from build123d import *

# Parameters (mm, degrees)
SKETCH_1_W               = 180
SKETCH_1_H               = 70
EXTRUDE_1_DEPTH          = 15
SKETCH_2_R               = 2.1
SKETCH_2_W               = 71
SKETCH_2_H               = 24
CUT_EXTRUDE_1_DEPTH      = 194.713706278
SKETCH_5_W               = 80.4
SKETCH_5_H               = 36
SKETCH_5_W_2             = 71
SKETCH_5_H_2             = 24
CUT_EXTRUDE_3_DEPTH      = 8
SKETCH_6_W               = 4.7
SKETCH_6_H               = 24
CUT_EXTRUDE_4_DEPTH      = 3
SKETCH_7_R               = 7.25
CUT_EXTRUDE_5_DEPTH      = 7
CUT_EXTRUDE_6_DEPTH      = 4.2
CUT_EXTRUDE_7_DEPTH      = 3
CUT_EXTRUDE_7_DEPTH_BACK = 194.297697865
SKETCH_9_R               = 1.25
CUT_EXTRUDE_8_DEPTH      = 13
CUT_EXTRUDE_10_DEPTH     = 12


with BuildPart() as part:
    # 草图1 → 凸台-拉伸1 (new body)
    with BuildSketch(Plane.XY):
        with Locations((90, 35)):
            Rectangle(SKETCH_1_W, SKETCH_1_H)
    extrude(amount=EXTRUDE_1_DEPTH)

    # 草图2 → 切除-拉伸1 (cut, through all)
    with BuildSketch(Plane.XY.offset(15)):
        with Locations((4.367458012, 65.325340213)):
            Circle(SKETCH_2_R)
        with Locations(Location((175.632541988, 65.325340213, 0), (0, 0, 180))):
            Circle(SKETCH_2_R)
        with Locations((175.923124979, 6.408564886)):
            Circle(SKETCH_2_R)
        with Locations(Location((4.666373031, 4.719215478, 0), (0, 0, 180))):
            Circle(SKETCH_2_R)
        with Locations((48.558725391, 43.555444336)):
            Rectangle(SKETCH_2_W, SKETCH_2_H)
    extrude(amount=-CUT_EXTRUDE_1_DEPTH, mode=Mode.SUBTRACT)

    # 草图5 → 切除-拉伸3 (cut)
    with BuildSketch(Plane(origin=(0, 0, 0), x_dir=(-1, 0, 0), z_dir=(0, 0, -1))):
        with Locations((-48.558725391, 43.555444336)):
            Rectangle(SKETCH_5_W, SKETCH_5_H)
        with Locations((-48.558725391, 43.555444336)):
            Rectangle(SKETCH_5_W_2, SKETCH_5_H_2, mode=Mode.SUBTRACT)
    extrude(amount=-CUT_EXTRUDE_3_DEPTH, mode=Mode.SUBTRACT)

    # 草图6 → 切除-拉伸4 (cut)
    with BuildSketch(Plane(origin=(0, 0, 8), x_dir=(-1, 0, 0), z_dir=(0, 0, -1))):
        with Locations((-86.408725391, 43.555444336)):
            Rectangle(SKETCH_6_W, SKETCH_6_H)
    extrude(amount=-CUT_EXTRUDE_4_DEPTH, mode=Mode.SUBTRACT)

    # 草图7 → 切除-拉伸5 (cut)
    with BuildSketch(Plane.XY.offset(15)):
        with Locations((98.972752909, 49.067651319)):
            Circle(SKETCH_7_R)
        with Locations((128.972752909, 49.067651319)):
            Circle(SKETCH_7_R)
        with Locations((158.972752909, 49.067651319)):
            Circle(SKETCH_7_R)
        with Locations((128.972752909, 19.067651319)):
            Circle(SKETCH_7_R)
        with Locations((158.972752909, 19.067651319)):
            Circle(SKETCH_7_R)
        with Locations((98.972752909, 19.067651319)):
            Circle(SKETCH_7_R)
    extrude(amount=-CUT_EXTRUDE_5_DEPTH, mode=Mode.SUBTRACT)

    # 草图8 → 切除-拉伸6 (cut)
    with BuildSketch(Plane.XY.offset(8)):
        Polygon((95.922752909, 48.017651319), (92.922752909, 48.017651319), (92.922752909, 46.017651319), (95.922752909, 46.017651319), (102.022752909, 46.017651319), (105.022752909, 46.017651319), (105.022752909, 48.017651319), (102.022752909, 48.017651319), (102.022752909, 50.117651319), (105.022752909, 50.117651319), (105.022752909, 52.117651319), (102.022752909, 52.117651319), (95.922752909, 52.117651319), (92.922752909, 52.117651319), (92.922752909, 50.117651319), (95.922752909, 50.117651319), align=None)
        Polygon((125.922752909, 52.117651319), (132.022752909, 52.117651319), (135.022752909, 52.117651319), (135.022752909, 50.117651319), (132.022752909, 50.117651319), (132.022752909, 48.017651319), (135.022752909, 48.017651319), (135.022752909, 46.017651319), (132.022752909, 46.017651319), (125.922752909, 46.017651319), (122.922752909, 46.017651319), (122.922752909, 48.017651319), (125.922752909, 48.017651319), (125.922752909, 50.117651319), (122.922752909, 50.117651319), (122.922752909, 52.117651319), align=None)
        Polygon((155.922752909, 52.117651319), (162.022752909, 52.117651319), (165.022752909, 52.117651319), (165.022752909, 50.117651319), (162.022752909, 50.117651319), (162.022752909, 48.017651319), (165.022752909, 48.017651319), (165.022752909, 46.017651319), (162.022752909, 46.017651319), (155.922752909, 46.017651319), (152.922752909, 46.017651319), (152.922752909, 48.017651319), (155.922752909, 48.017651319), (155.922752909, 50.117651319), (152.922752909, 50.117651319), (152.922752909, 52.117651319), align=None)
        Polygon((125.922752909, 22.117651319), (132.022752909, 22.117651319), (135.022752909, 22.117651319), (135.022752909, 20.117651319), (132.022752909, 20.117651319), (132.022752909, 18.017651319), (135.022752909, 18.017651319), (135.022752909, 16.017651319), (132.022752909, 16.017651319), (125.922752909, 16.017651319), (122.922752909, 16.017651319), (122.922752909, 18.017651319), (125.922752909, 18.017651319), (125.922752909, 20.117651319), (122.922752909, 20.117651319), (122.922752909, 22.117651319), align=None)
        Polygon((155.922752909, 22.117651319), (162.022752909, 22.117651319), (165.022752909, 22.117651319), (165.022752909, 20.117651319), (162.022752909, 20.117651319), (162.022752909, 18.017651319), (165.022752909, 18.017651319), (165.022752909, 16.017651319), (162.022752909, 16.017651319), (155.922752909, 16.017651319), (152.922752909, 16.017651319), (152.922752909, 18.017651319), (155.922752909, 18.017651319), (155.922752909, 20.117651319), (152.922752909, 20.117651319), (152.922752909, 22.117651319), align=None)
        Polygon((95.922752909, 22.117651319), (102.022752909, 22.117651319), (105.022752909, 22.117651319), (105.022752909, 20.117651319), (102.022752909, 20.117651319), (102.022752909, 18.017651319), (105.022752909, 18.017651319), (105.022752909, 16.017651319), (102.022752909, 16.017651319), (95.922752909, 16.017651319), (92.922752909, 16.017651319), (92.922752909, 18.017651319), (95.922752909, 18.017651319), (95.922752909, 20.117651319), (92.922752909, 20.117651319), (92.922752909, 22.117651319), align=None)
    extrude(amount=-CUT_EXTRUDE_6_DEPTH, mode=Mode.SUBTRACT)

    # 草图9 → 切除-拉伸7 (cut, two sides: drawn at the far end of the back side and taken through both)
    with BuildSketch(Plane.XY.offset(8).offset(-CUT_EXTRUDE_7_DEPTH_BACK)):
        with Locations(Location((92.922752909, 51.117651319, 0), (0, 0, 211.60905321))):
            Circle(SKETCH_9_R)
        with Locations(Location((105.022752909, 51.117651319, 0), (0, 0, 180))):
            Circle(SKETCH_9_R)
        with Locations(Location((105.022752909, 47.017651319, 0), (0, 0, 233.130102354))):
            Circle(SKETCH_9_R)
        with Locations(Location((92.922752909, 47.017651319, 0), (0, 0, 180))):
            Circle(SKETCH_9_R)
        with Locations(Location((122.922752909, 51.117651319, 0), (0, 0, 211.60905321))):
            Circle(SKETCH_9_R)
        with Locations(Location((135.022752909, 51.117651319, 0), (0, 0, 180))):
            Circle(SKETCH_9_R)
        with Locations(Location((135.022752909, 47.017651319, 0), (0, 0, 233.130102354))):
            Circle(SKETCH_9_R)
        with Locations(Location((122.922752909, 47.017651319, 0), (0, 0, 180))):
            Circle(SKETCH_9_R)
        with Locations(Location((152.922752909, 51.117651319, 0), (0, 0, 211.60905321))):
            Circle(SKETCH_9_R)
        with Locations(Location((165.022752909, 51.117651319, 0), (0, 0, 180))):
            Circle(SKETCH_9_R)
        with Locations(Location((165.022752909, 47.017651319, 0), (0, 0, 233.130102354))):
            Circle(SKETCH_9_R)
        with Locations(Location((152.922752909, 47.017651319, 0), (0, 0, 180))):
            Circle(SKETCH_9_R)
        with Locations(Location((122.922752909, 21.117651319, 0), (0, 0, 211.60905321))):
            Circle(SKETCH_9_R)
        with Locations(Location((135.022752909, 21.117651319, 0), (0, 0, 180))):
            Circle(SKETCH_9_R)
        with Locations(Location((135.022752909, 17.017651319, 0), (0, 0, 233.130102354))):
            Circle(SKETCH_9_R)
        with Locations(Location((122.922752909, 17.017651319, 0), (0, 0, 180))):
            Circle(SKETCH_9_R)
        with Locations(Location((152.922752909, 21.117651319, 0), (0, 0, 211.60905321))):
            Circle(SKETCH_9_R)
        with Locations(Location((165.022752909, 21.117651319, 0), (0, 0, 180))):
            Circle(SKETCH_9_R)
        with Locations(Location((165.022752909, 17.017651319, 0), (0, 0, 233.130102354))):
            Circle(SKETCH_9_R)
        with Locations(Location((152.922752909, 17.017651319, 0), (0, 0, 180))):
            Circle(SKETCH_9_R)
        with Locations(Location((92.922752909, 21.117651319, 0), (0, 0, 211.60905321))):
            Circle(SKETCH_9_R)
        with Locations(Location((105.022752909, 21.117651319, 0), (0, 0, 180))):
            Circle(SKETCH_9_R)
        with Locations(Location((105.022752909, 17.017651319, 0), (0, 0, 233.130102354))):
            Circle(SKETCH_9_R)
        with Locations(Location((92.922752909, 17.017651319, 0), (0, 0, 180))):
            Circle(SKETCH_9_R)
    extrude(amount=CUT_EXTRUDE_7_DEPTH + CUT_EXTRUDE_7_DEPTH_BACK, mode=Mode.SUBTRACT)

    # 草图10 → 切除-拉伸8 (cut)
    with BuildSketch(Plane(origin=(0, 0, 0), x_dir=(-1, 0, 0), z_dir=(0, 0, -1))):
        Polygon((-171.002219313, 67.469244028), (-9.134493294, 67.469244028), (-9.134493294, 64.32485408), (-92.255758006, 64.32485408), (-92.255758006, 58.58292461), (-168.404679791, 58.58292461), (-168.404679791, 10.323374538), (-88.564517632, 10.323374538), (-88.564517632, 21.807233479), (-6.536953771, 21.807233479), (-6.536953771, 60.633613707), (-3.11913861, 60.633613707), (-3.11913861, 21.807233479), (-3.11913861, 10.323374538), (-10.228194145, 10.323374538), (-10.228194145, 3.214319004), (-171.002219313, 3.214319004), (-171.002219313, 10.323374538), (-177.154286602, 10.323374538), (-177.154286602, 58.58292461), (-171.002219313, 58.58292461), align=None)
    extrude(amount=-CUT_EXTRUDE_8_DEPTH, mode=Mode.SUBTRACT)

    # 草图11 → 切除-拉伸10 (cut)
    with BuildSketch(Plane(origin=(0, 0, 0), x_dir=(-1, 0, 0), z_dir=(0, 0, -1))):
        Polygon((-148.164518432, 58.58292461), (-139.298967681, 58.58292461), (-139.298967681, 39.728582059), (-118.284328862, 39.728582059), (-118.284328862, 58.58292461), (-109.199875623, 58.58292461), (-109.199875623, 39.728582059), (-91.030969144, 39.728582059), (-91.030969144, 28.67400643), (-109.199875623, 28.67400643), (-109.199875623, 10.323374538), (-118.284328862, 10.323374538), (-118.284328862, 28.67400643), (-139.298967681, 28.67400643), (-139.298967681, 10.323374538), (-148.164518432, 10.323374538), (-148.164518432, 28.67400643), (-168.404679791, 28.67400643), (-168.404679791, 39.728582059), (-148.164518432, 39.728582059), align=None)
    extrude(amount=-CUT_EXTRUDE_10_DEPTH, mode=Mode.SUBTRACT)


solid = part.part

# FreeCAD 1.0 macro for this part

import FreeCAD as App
import Part
import Sketcher
Q = App.Units.Quantity


def add_polygon(sketch, points):
    """Adds a closed chain of lines whose ends are joined by coincident constraints."""
    first, n = sketch.GeometryCount, len(points)
    for a, b in zip(points, points[1:] + points[:1]):
        sketch.addGeometry(Part.LineSegment(App.Vector(*a, 0), App.Vector(*b, 0)), False)
    for i in range(n):
        sketch.addConstraint(Sketcher.Constraint("Coincident", first + i, 2, first + (i + 1) % n, 1))

doc = App.newDocument("Part")
body = doc.addObject("PartDesign::Body", "Body")

# Sketch on XY plane
sketch1 = doc.addObject("Sketcher::SketchObject", "Sketch")
body.addObject(sketch1)
sketch1.AttachmentSupport = (doc.XY_Plane, [""])
sketch1.MapMode = "FlatFace"
add_polygon(sketch1, [(0, 70), (0, 0), (180, 0), (180, 70)])  # lines 0-3
sketch1.addConstraint([
    Sketcher.Constraint("Vertical", 0),
    Sketcher.Constraint("Horizontal", 1),
    Sketcher.Constraint("Vertical", 2),
    Sketcher.Constraint("Horizontal", 3),
    Sketcher.Constraint("Coincident", 0, 2, -1, 1),
    Sketcher.Constraint("DistanceX", 1, 1, 1, 2, Q("180 mm")),
    Sketcher.Constraint("DistanceY", 0, 2, 0, 1, Q("70 mm")),
])
pad1 = doc.addObject("PartDesign::Pad", "Pad")
body.addObject(pad1)
pad1.Profile = sketch1
pad1.Length = 15

# Sketch on XY plane
sketch2 = doc.addObject("Sketcher::SketchObject", "Sketch001")
body.addObject(sketch2)
sketch2.AttachmentSupport = (doc.XY_Plane, [""])
sketch2.MapMode = "FlatFace"
sketch2.AttachmentOffset = App.Placement(App.Vector(0, 0, 15), App.Rotation())
sketch2.addGeometry(Part.Circle(App.Vector(4.4, 65.3, 0), App.Vector(0, 0, 1), 2.1), False)  # 0
sketch2.addGeometry(Part.Circle(App.Vector(175.6, 65.3, 0), App.Vector(0, 0, 1), 2.1), False)  # 1
sketch2.addGeometry(Part.Circle(App.Vector(175.9, 6.4, 0), App.Vector(0, 0, 1), 2.1), False)  # 2
sketch2.addGeometry(Part.Circle(App.Vector(4.7, 4.7, 0), App.Vector(0, 0, 1), 2.1), False)  # 3
add_polygon(sketch2, [(13.1, 55.6), (13.1, 31.6), (84.1, 31.6), (84.1, 55.6)])  # lines 4-7
sketch2.addConstraint([
    Sketcher.Constraint("Vertical", 4),
    Sketcher.Constraint("Horizontal", 5),
    Sketcher.Constraint("Vertical", 6),
    Sketcher.Constraint("Horizontal", 7),
    Sketcher.Constraint("Equal", 0, 1),
    Sketcher.Constraint("Equal", 1, 2),
    Sketcher.Constraint("Equal", 2, 3),
    Sketcher.Constraint("Horizontal", 0, 3, 1, 3),
    Sketcher.Constraint("Diameter", 0, Q("4.2 mm")),
    Sketcher.Constraint("DistanceX", 5, 1, 5, 2, Q("71 mm")),
    Sketcher.Constraint("DistanceY", 4, 2, 4, 1, Q("24 mm")),
    Sketcher.Constraint("DistanceX", 4, 2, 2, 3, Q("162.8644 mm")),
    Sketcher.Constraint("DistanceX", -1, 1, 0, 3, Q("4.367458 mm")),
    Sketcher.Constraint("DistanceY", -1, 1, 0, 3, Q("65.32534 mm")),
    Sketcher.Constraint("DistanceX", -1, 1, 1, 3, Q("175.632542 mm")),
    Sketcher.Constraint("DistanceX", 3, 3, 2, 3, Q("171.256752 mm")),
    Sketcher.Constraint("DistanceY", 3, 3, 2, 3, Q("1.689349 mm")),
    Sketcher.Constraint("DistanceX", 3, 3, 1, 3, Q("170.966169 mm")),
    Sketcher.Constraint("DistanceY", 3, 3, 4, 2, Q("26.836229 mm")),
    Sketcher.Constraint("DistanceY", -1, 1, 2, 3, Q("6.408565 mm")),
])
pocket1 = doc.addObject("PartDesign::Pocket", "Pocket")
body.addObject(pocket1)
pocket1.Profile = sketch2
pocket1.Type = "ThroughAll"

# Sketch on XY plane
sketch3 = doc.addObject("Sketcher::SketchObject", "Sketch002")
body.addObject(sketch3)
sketch3.AttachmentSupport = (doc.XY_Plane, [""])
sketch3.MapMode = "FlatFace"
add_polygon(sketch3, [(89, 62), (89, 26), (8, 26), (8, 62)])  # lines 0-3
add_polygon(sketch3, [(13, 32), (84, 32), (84, 56), (13, 56)])  # lines 4-7
sketch3.addConstraint([
    Sketcher.Constraint("Vertical", 0),
    Sketcher.Constraint("Horizontal", 1),
    Sketcher.Constraint("Vertical", 2),
    Sketcher.Constraint("Horizontal", 3),
    Sketcher.Constraint("Horizontal", 4),
    Sketcher.Constraint("Vertical", 5),
    Sketcher.Constraint("Horizontal", 6),
    Sketcher.Constraint("Vertical", 7),
    Sketcher.Constraint("DistanceX", 4, 1, 4, 2, Q("71 mm")),
    Sketcher.Constraint("DistanceY", 0, 2, 0, 1, Q("36 mm")),
    Sketcher.Constraint("DistanceY", 5, 1, 5, 2, Q("24 mm")),
    Sketcher.Constraint("DistanceX", 1, 2, 1, 1, Q("80.4 mm")),
    Sketcher.Constraint("DistanceY", 0, 2, 4, 2, Q("6 mm")),
    Sketcher.Constraint("DistanceX", 4, 2, 0, 2, Q("4.7 mm")),
    Sketcher.Constraint("DistanceX", -1, 1, 0, 2, Q("88.758725 mm")),
    Sketcher.Constraint("DistanceY", -1, 1, 0, 2, Q("25.555444 mm")),
])
pocket2 = doc.addObject("PartDesign::Pocket", "Pocket001")
body.addObject(pocket2)
pocket2.Profile = sketch3
pocket2.Length = 8
pocket2.Reversed = True

# Sketch on XY plane
sketch4 = doc.addObject("Sketcher::SketchObject", "Sketch003")
body.addObject(sketch4)
sketch4.AttachmentSupport = (doc.XY_Plane, [""])
sketch4.MapMode = "FlatFace"
sketch4.AttachmentOffset = App.Placement(App.Vector(0, 0, 8), App.Rotation())
add_polygon(sketch4, [(88.8, 55.6), (88.8, 31.6), (84.1, 31.6), (84.1, 55.6)])  # lines 0-3
sketch4.addConstraint([
    Sketcher.Constraint("Vertical", 0),
    Sketcher.Constraint("Horizontal", 1),
    Sketcher.Constraint("Vertical", 2),
    Sketcher.Constraint("Horizontal", 3),
    Sketcher.Constraint("DistanceY", 0, 2, 0, 1, Q("24 mm")),
    Sketcher.Constraint("DistanceX", 1, 2, 1, 1, Q("4.7 mm")),
    Sketcher.Constraint("DistanceX", -1, 1, 0, 2, Q("88.758725 mm")),
    Sketcher.Constraint("DistanceY", -1, 1, 0, 2, Q("31.555444 mm")),
])
pocket3 = doc.addObject("PartDesign::Pocket", "Pocket002")
body.addObject(pocket3)
pocket3.Profile = sketch4
pocket3.Length = 3
pocket3.Reversed = True

# Sketch on XY plane
sketch5 = doc.addObject("Sketcher::SketchObject", "Sketch004")
body.addObject(sketch5)
sketch5.AttachmentSupport = (doc.XY_Plane, [""])
sketch5.MapMode = "FlatFace"
sketch5.AttachmentOffset = App.Placement(App.Vector(0, 0, 15), App.Rotation())
sketch5.addGeometry([
    Part.Circle(App.Vector(99, 49, 0), App.Vector(0, 0, 1), 7),  # 0
    Part.Circle(App.Vector(129, 49, 0), App.Vector(0, 0, 1), 7),  # 1
    Part.Circle(App.Vector(159, 49, 0), App.Vector(0, 0, 1), 7),  # 2
    Part.Circle(App.Vector(129, 19, 0), App.Vector(0, 0, 1), 7),  # 3
    Part.Circle(App.Vector(159, 19, 0), App.Vector(0, 0, 1), 7),  # 4
    Part.Circle(App.Vector(99, 19, 0), App.Vector(0, 0, 1), 7),  # 5
], False)
sketch5.addConstraint([
    Sketcher.Constraint("Equal", 0, 1),
    Sketcher.Constraint("Equal", 1, 2),
    Sketcher.Constraint("Equal", 2, 3),
    Sketcher.Constraint("Equal", 3, 4),
    Sketcher.Constraint("Equal", 4, 5),
    Sketcher.Constraint("Horizontal", 0, 3, 1, 3),
    Sketcher.Constraint("Horizontal", 1, 3, 2, 3),
    Sketcher.Constraint("Horizontal", 3, 3, 4, 3),
    Sketcher.Constraint("Horizontal", 4, 3, 5, 3),
    Sketcher.Constraint("Vertical", 1, 3, 3, 3),
    Sketcher.Constraint("Vertical", 2, 3, 4, 3),
    Sketcher.Constraint("Vertical", 0, 3, 5, 3),
    Sketcher.Constraint("Diameter", 0, Q("14.5 mm")),
    Sketcher.Constraint("DistanceX", 0, 3, 1, 3, Q("30 mm")),
    Sketcher.Constraint("DistanceX", 1, 3, 2, 3, Q("30 mm")),
    Sketcher.Constraint("DistanceY", 3, 3, 1, 3, Q("30 mm")),
    Sketcher.Constraint("DistanceY", -1, 1, 0, 3, Q("49.067651 mm")),
    Sketcher.Constraint("DistanceX", -1, 1, 0, 3, Q("98.972753 mm")),
])
pocket4 = doc.addObject("PartDesign::Pocket", "Pocket003")
body.addObject(pocket4)
pocket4.Profile = sketch5
pocket4.Length = 7

# Sketch on XY plane
sketch6 = doc.addObject("Sketcher::SketchObject", "Sketch005")
body.addObject(sketch6)
sketch6.AttachmentSupport = (doc.XY_Plane, [""])
sketch6.MapMode = "FlatFace"
sketch6.AttachmentOffset = App.Placement(App.Vector(0, 0, 8), App.Rotation())
add_polygon(sketch6, [(95.9, 48), (92.9, 48), (92.9, 46), (105, 46), (105, 48), (102, 48), (102, 50.1), (105, 50.1), (105, 52.1), (92.9, 52.1), (92.9, 50.1), (95.9, 50.1)])  # lines 0-11
add_polygon(sketch6, [(135, 52.1), (122.9, 52.1), (122.9, 50.1), (125.9, 50.1), (125.9, 48), (122.9, 48), (122.9, 46), (135, 46), (135, 48), (132, 48), (132, 50.1), (135, 50.1)])  # lines 12-23
add_polygon(sketch6, [(165, 52.1), (152.9, 52.1), (152.9, 50.1), (155.9, 50.1), (155.9, 48), (152.9, 48), (152.9, 46), (165, 46), (165, 48), (162, 48), (162, 50.1), (165, 50.1)])  # lines 24-35
add_polygon(sketch6, [(135, 22.1), (122.9, 22.1), (122.9, 20.1), (125.9, 20.1), (125.9, 18), (122.9, 18), (122.9, 16), (135, 16), (135, 18), (132, 18), (132, 20.1), (135, 20.1)])  # lines 36-47
add_polygon(sketch6, [(165, 22.1), (152.9, 22.1), (152.9, 20.1), (155.9, 20.1), (155.9, 18), (152.9, 18), (152.9, 16), (165, 16), (165, 18), (162, 18), (162, 20.1), (165, 20.1)])  # lines 48-59
add_polygon(sketch6, [(105, 22.1), (92.9, 22.1), (92.9, 20.1), (95.9, 20.1), (95.9, 18), (92.9, 18), (92.9, 16), (105, 16), (105, 18), (102, 18), (102, 20.1), (105, 20.1)])  # lines 60-71
sketch6.addConstraint([
    Sketcher.Constraint("Horizontal", 0),
    Sketcher.Constraint("Vertical", 1),
    Sketcher.Constraint("Horizontal", 2),
    Sketcher.Constraint("Vertical", 3),
    Sketcher.Constraint("Horizontal", 4),
    Sketcher.Constraint("Vertical", 5),
    Sketcher.Constraint("Horizontal", 6),
    Sketcher.Constraint("Vertical", 7),
    Sketcher.Constraint("Horizontal", 8),
    Sketcher.Constraint("Vertical", 9),
    Sketcher.Constraint("Horizontal", 10),
    Sketcher.Constraint("Vertical", 11),
    Sketcher.Constraint("Horizontal", 12),
    Sketcher.Constraint("Vertical", 13),
    Sketcher.Constraint("Horizontal", 14),
    Sketcher.Constraint("Vertical", 15),
    Sketcher.Constraint("Horizontal", 16),
    Sketcher.Constraint("Vertical", 17),
    Sketcher.Constraint("Horizontal", 18),
    Sketcher.Constraint("Vertical", 19),
    Sketcher.Constraint("Horizontal", 20),
    Sketcher.Constraint("Vertical", 21),
    Sketcher.Constraint("Horizontal", 22),
    Sketcher.Constraint("Vertical", 23),
    Sketcher.Constraint("Horizontal", 24),
    Sketcher.Constraint("Vertical", 25),
    Sketcher.Constraint("Horizontal", 26),
    Sketcher.Constraint("Vertical", 27),
    Sketcher.Constraint("Horizontal", 28),
    Sketcher.Constraint("Vertical", 29),
    Sketcher.Constraint("Horizontal", 30),
    Sketcher.Constraint("Vertical", 31),
    Sketcher.Constraint("Horizontal", 32),
    Sketcher.Constraint("Vertical", 33),
    Sketcher.Constraint("Horizontal", 34),
    Sketcher.Constraint("Vertical", 35),
    Sketcher.Constraint("Horizontal", 36),
    Sketcher.Constraint("Vertical", 37),
    Sketcher.Constraint("Horizontal", 38),
    Sketcher.Constraint("Vertical", 39),
    Sketcher.Constraint("Horizontal", 40),
    Sketcher.Constraint("Vertical", 41),
    Sketcher.Constraint("Horizontal", 42),
    Sketcher.Constraint("Vertical", 43),
    Sketcher.Constraint("Horizontal", 44),
    Sketcher.Constraint("Vertical", 45),
    Sketcher.Constraint("Horizontal", 46),
    Sketcher.Constraint("Vertical", 47),
    Sketcher.Constraint("Horizontal", 48),
    Sketcher.Constraint("Vertical", 49),
    Sketcher.Constraint("Horizontal", 50),
    Sketcher.Constraint("Vertical", 51),
    Sketcher.Constraint("Horizontal", 52),
    Sketcher.Constraint("Vertical", 53),
    Sketcher.Constraint("Horizontal", 54),
    Sketcher.Constraint("Vertical", 55),
    Sketcher.Constraint("Horizontal", 56),
    Sketcher.Constraint("Vertical", 57),
    Sketcher.Constraint("Horizontal", 58),
    Sketcher.Constraint("Vertical", 59),
    Sketcher.Constraint("Horizontal", 60),
    Sketcher.Constraint("Vertical", 61),
    Sketcher.Constraint("Horizontal", 62),
    Sketcher.Constraint("Vertical", 63),
    Sketcher.Constraint("Horizontal", 64),
    Sketcher.Constraint("Vertical", 65),
    Sketcher.Constraint("Horizontal", 66),
    Sketcher.Constraint("Vertical", 67),
    Sketcher.Constraint("Horizontal", 68),
    Sketcher.Constraint("Vertical", 69),
    Sketcher.Constraint("Horizontal", 70),
    Sketcher.Constraint("Vertical", 71),
    Sketcher.Constraint("Horizontal", 0, 2, 3, 2),
    Sketcher.Constraint("Horizontal", 6, 2, 9, 2),
    Sketcher.Constraint("Horizontal", 8, 2, 12, 2),
    Sketcher.Constraint("Horizontal", 10, 2, 13, 2),
    Sketcher.Constraint("Horizontal", 11, 2, 15, 2),
    Sketcher.Constraint("Horizontal", 2, 2, 17, 2),
    Sketcher.Constraint("Horizontal", 16, 2, 19, 2),
    Sketcher.Constraint("Horizontal", 14, 2, 21, 2),
    Sketcher.Constraint("Horizontal", 23, 2, 24, 2),
    Sketcher.Constraint("Horizontal", 22, 2, 25, 2),
    Sketcher.Constraint("Horizontal", 20, 2, 27, 2),
    Sketcher.Constraint("Horizontal", 18, 2, 29, 2),
    Sketcher.Constraint("Horizontal", 28, 2, 31, 2),
    Sketcher.Constraint("Horizontal", 26, 2, 33, 2),
    Sketcher.Constraint("Horizontal", 40, 2, 43, 2),
    Sketcher.Constraint("Horizontal", 38, 2, 45, 2),
    Sketcher.Constraint("Horizontal", 47, 2, 48, 2),
    Sketcher.Constraint("Horizontal", 46, 2, 49, 2),
    Sketcher.Constraint("Horizontal", 44, 2, 51, 2),
    Sketcher.Constraint("Horizontal", 42, 2, 53, 2),
    Sketcher.Constraint("Horizontal", 52, 2, 55, 2),
    Sketcher.Constraint("Horizontal", 50, 2, 57, 2),
    Sketcher.Constraint("Horizontal", 59, 2, 60, 2),
    Sketcher.Constraint("Horizontal", 58, 2, 61, 2),
    Sketcher.Constraint("Horizontal", 56, 2, 63, 2),
    Sketcher.Constraint("Horizontal", 54, 2, 65, 2),
    Sketcher.Constraint("Horizontal", 64, 2, 67, 2),
    Sketcher.Constraint("Horizontal", 62, 2, 69, 2),
    Sketcher.Constraint("Vertical", 3, 2, 6, 2),
    Sketcher.Constraint("Vertical", 1, 2, 8, 2),
    Sketcher.Constraint("Vertical", 13, 2, 16, 2),
    Sketcher.Constraint("Vertical", 19, 2, 22, 2),
    Sketcher.Constraint("Vertical", 25, 2, 28, 2),
    Sketcher.Constraint("Vertical", 31, 2, 34, 2),
    Sketcher.Constraint("Vertical", 17, 2, 36, 2),
    Sketcher.Constraint("Vertical", 15, 2, 38, 2),
    Sketcher.Constraint("Vertical", 37, 2, 40, 2),
    Sketcher.Constraint("Vertical", 23, 2, 42, 2),
    Sketcher.Constraint("Vertical", 21, 2, 44, 2),
    Sketcher.Constraint("Vertical", 43, 2, 46, 2),
    Sketcher.Constraint("Vertical", 29, 2, 48, 2),
    Sketcher.Constraint("Vertical", 27, 2, 50, 2),
    Sketcher.Constraint("Vertical", 49, 2, 52, 2),
    Sketcher.Constraint("Vertical", 35, 2, 54, 2),
    Sketcher.Constraint("Vertical", 33, 2, 56, 2),
    Sketcher.Constraint("Vertical", 55, 2, 58, 2),
    Sketcher.Constraint("Vertical", 9, 2, 60, 2),
    Sketcher.Constraint("Vertical", 11, 2, 62, 2),
    Sketcher.Constraint("Vertical", 61, 2, 64, 2),
    Sketcher.Constraint("Vertical", 7, 2, 66, 2),
    Sketcher.Constraint("Vertical", 5, 2, 68, 2),
    Sketcher.Constraint("Vertical", 67, 2, 70, 2),
    Sketcher.Constraint("Equal", 0, 4),
    Sketcher.Constraint("Equal", 8, 12),
    Sketcher.Constraint("Equal", 10, 14),
    Sketcher.Constraint("Equal", 16, 20),
    Sketcher.Constraint("Equal", 18, 24),
    Sketcher.Constraint("Equal", 22, 26),
    Sketcher.Constraint("Equal", 28, 32),
    Sketcher.Constraint("Equal", 3, 7),
    Sketcher.Constraint("Equal", 35, 37),
    Sketcher.Constraint("Equal", 33, 39),
    Sketcher.Constraint("Equal", 37, 41),
    Sketcher.Constraint("DistanceX", 0, 2, 0, 1, Q("3 mm")),
    Sketcher.Constraint("DistanceY", 1, 2, 1, 1, Q("2 mm")),
    Sketcher.Constraint("DistanceX", 2, 1, 2, 2, Q("12.1 mm")),
    Sketcher.Constraint("DistanceY", 5, 1, 5, 2, Q("2.1 mm")),
    Sketcher.Constraint("DistanceY", -1, 1, 0, 2, Q("48.017651 mm")),
    Sketcher.Constraint("DistanceY", -1, 1, 36, 2, Q("22.117651 mm")),
    Sketcher.Constraint("DistanceX", -1, 1, 0, 2, Q("92.922753 mm")),
    Sketcher.Constraint("DistanceX", -1, 1, 12, 2, Q("122.922753 mm")),
    Sketcher.Constraint("DistanceX", -1, 1, 24, 2, Q("152.922753 mm")),
])
pocket5 = doc.addObject("PartDesign::Pocket", "Pocket004")
body.addObject(pocket5)
pocket5.Profile = sketch6
pocket5.Length = 4.2

# Sketch on XY plane
sketch7 = doc.addObject("Sketcher::SketchObject", "Sketch006")
body.addObject(sketch7)
sketch7.AttachmentSupport = (doc.XY_Plane, [""])
sketch7.MapMode = "FlatFace"
sketch7.AttachmentOffset = App.Placement(App.Vector(0, 0, 8), App.Rotation())
sketch7.addGeometry([
    Part.Circle(App.Vector(92.9, 51.1, 0), App.Vector(0, 0, 1), 1.2),  # 0
    Part.Circle(App.Vector(105, 51.1, 0), App.Vector(0, 0, 1), 1.2),  # 1
    Part.Circle(App.Vector(105, 47, 0), App.Vector(0, 0, 1), 1.2),  # 2
    Part.Circle(App.Vector(92.9, 47, 0), App.Vector(0, 0, 1), 1.2),  # 3
    Part.Circle(App.Vector(122.9, 51.1, 0), App.Vector(0, 0, 1), 1.2),  # 4
    Part.Circle(App.Vector(135, 51.1, 0), App.Vector(0, 0, 1), 1.2),  # 5
    Part.Circle(App.Vector(135, 47, 0), App.Vector(0, 0, 1), 1.2),  # 6
    Part.Circle(App.Vector(122.9, 47, 0), App.Vector(0, 0, 1), 1.2),  # 7
    Part.Circle(App.Vector(152.9, 51.1, 0), App.Vector(0, 0, 1), 1.2),  # 8
    Part.Circle(App.Vector(165, 51.1, 0), App.Vector(0, 0, 1), 1.2),  # 9
    Part.Circle(App.Vector(165, 47, 0), App.Vector(0, 0, 1), 1.2),  # 10
    Part.Circle(App.Vector(152.9, 47, 0), App.Vector(0, 0, 1), 1.2),  # 11
    Part.Circle(App.Vector(122.9, 21.1, 0), App.Vector(0, 0, 1), 1.2),  # 12
    Part.Circle(App.Vector(135, 21.1, 0), App.Vector(0, 0, 1), 1.2),  # 13
    Part.Circle(App.Vector(135, 17, 0), App.Vector(0, 0, 1), 1.2),  # 14
    Part.Circle(App.Vector(122.9, 17, 0), App.Vector(0, 0, 1), 1.2),  # 15
    Part.Circle(App.Vector(152.9, 21.1, 0), App.Vector(0, 0, 1), 1.2),  # 16
    Part.Circle(App.Vector(165, 21.1, 0), App.Vector(0, 0, 1), 1.2),  # 17
    Part.Circle(App.Vector(165, 17, 0), App.Vector(0, 0, 1), 1.2),  # 18
    Part.Circle(App.Vector(152.9, 17, 0), App.Vector(0, 0, 1), 1.2),  # 19
    Part.Circle(App.Vector(92.9, 21.1, 0), App.Vector(0, 0, 1), 1.2),  # 20
    Part.Circle(App.Vector(105, 21.1, 0), App.Vector(0, 0, 1), 1.2),  # 21
    Part.Circle(App.Vector(105, 17, 0), App.Vector(0, 0, 1), 1.2),  # 22
    Part.Circle(App.Vector(92.9, 17, 0), App.Vector(0, 0, 1), 1.2),  # 23
], False)
sketch7.addConstraint([
    Sketcher.Constraint("Equal", 0, 1),
    Sketcher.Constraint("Equal", 1, 2),
    Sketcher.Constraint("Equal", 2, 3),
    Sketcher.Constraint("Equal", 3, 4),
    Sketcher.Constraint("Equal", 4, 5),
    Sketcher.Constraint("Equal", 5, 6),
    Sketcher.Constraint("Equal", 6, 7),
    Sketcher.Constraint("Equal", 7, 8),
    Sketcher.Constraint("Equal", 8, 9),
    Sketcher.Constraint("Equal", 9, 10),
    Sketcher.Constraint("Equal", 10, 11),
    Sketcher.Constraint("Equal", 11, 12),
    Sketcher.Constraint("Equal", 12, 13),
    Sketcher.Constraint("Equal", 13, 14),
    Sketcher.Constraint("Equal", 14, 15),
    Sketcher.Constraint("Equal", 15, 16),
    Sketcher.Constraint("Equal", 16, 17),
    Sketcher.Constraint("Equal", 17, 18),
    Sketcher.Constraint("Equal", 18, 19),
    Sketcher.Constraint("Equal", 19, 20),
    Sketcher.Constraint("Equal", 20, 21),
    Sketcher.Constraint("Equal", 21, 22),
    Sketcher.Constraint("Equal", 22, 23),
    Sketcher.Constraint("Horizontal", 0, 3, 1, 3),
    Sketcher.Constraint("Horizontal", 2, 3, 3, 3),
    Sketcher.Constraint("Horizontal", 1, 3, 4, 3),
    Sketcher.Constraint("Horizontal", 4, 3, 5, 3),
    Sketcher.Constraint("Horizontal", 3, 3, 6, 3),
    Sketcher.Constraint("Horizontal", 6, 3, 7, 3),
    Sketcher.Constraint("Horizontal", 5, 3, 8, 3),
    Sketcher.Constraint("Horizontal", 8, 3, 9, 3),
    Sketcher.Constraint("Horizontal", 7, 3, 10, 3),
    Sketcher.Constraint("Horizontal", 10, 3, 11, 3),
    Sketcher.Constraint("Horizontal", 12, 3, 13, 3),
    Sketcher.Constraint("Horizontal", 14, 3, 15, 3),
    Sketcher.Constraint("Horizontal", 13, 3, 16, 3),
    Sketcher.Constraint("Horizontal", 16, 3, 17, 3),
    Sketcher.Constraint("Horizontal", 15, 3, 18, 3),
    Sketcher.Constraint("Horizontal", 18, 3, 19, 3),
    Sketcher.Constraint("Horizontal", 17, 3, 20, 3),
    Sketcher.Constraint("Horizontal", 20, 3, 21, 3),
    Sketcher.Constraint("Horizontal", 19, 3, 22, 3),
    Sketcher.Constraint("Horizontal", 22, 3, 23, 3),
    Sketcher.Constraint("Vertical", 1, 3, 2, 3),
    Sketcher.Constraint("Vertical", 0, 3, 3, 3),
    Sketcher.Constraint("Vertical", 5, 3, 6, 3),
    Sketcher.Constraint("Vertical", 4, 3, 7, 3),
    Sketcher.Constraint("Vertical", 9, 3, 10, 3),
    Sketcher.Constraint("Vertical", 8, 3, 11, 3),
    Sketcher.Constraint("Vertical", 7, 3, 12, 3),
    Sketcher.Constraint("Vertical", 6, 3, 13, 3),
    Sketcher.Constraint("Vertical", 13, 3, 14, 3),
    Sketcher.Constraint("Vertical", 12, 3, 15, 3),
    Sketcher.Constraint("Vertical", 11, 3, 16, 3),
    Sketcher.Constraint("Vertical", 10, 3, 17, 3),
    Sketcher.Constraint("Vertical", 17, 3, 18, 3),
    Sketcher.Constraint("Vertical", 16, 3, 19, 3),
    Sketcher.Constraint("Vertical", 3, 3, 20, 3),
    Sketcher.Constraint("Vertical", 2, 3, 21, 3),
    Sketcher.Constraint("Vertical", 21, 3, 22, 3),
    Sketcher.Constraint("Vertical", 20, 3, 23, 3),
    Sketcher.Constraint("Diameter", 0, Q("2.5 mm")),
    Sketcher.Constraint("DistanceX", 0, 3, 4, 3, Q("30 mm")),
    Sketcher.Constraint("DistanceX", 1, 3, 5, 3, Q("30 mm")),
    Sketcher.Constraint("DistanceX", 4, 3, 8, 3, Q("30 mm")),
    Sketcher.Constraint("DistanceX", 5, 3, 9, 3, Q("30 mm")),
    Sketcher.Constraint("DistanceY", 12, 3, 4, 3, Q("30 mm")),
    Sketcher.Constraint("DistanceY", 14, 3, 6, 3, Q("30 mm")),
    Sketcher.Constraint("DistanceX", 0, 3, 1, 3, Q("12.1 mm")),
    Sketcher.Constraint("DistanceY", 2, 3, 1, 3, Q("4.1 mm")),
    Sketcher.Constraint("DistanceY", -1, 1, 0, 3, Q("51.117651 mm")),
    Sketcher.Constraint("DistanceX", -1, 1, 0, 3, Q("92.922753 mm")),
])
pocket6 = doc.addObject("PartDesign::Pocket", "Pocket005")
body.addObject(pocket6)
pocket6.Profile = sketch7
pocket6.Type = "TwoLengths"
pocket6.Length = 3
pocket6.Length2 = 194.297698
pocket6.Reversed = True

# Sketch on XY plane
sketch8 = doc.addObject("Sketcher::SketchObject", "Sketch007")
body.addObject(sketch8)
sketch8.AttachmentSupport = (doc.XY_Plane, [""])
sketch8.MapMode = "FlatFace"
add_polygon(sketch8, [(9.1, 67.5), (171, 67.5), (171, 58.6), (177.2, 58.6), (177.2, 10.3), (171, 10.3), (171, 3.2), (10.2, 3.2), (10.2, 10.3), (3.1, 10.3), (3.1, 60.6), (6.5, 60.6), (6.5, 21.8), (88.6, 21.8), (88.6, 10.3), (168.4, 10.3), (168.4, 58.6), (92.3, 58.6), (92.3, 64.3), (9.1, 64.3)])  # lines 0-19
sketch8.addConstraint([
    Sketcher.Constraint("Horizontal", 0),
    Sketcher.Constraint("Vertical", 1),
    Sketcher.Constraint("Horizontal", 2),
    Sketcher.Constraint("Vertical", 3),
    Sketcher.Constraint("Horizontal", 4),
    Sketcher.Constraint("Vertical", 5),
    Sketcher.Constraint("Horizontal", 6),
    Sketcher.Constraint("Vertical", 7),
    Sketcher.Constraint("Horizontal", 8),
    Sketcher.Constraint("Vertical", 9),
    Sketcher.Constraint("Horizontal", 10),
    Sketcher.Constraint("Vertical", 11),
    Sketcher.Constraint("Horizontal", 12),
    Sketcher.Constraint("Vertical", 13),
    Sketcher.Constraint("Horizontal", 14),
    Sketcher.Constraint("Vertical", 15),
    Sketcher.Constraint("Horizontal", 16),
    Sketcher.Constraint("Vertical", 17),
    Sketcher.Constraint("Horizontal", 18),
    Sketcher.Constraint("Vertical", 19),
    Sketcher.Constraint("Horizontal", 4, 2, 7, 2),
    Sketcher.Constraint("Horizontal", 8, 2, 13, 2),
    Sketcher.Constraint("Horizontal", 2, 2, 15, 2),
    Sketcher.Constraint("Vertical", 1, 2, 4, 2),
    Sketcher.Constraint("Equal", 8, 5),
    Sketcher.Constraint("DistanceX", 16, 2, 16, 1, Q("76.148922 mm")),
    Sketcher.Constraint("DistanceY", 1, 2, 1, 1, Q("8.886319 mm")),
    Sketcher.Constraint("DistanceY", 3, 2, 3, 1, Q("48.25955 mm")),
    Sketcher.Constraint("DistanceY", 9, 1, 9, 2, Q("50.310239 mm")),
    Sketcher.Constraint("DistanceY", 11, 2, 11, 1, Q("38.82638 mm")),
    Sketcher.Constraint("DistanceY", 17, 1, 17, 2, Q("5.741929 mm")),
    Sketcher.Constraint("DistanceX", 12, 2, 4, 2, Q("82.437702 mm")),
    Sketcher.Constraint("DistanceX", 18, 2, 7, 2, Q("1.093701 mm")),
    Sketcher.Constraint("DistanceX", 0, 1, 0, 2, Q("161.867726 mm")),
    Sketcher.Constraint("DistanceX", 2, 1, 2, 2, Q("6.152067 mm")),
    Sketcher.Constraint("DistanceX", 8, 2, 8, 1, Q("7.109056 mm")),
    Sketcher.Constraint("DistanceX", 10, 1, 10, 2, Q("3.417815 mm")),
    Sketcher.Constraint("DistanceX", 14, 1, 14, 2, Q("79.840162 mm")),
    Sketcher.Constraint("DistanceX", -1, 1, 0, 2, Q("171.002219 mm")),
    Sketcher.Constraint("DistanceY", -1, 1, 5, 2, Q("3.214319 mm")),
])
pocket7 = doc.addObject("PartDesign::Pocket", "Pocket006")
body.addObject(pocket7)
pocket7.Profile = sketch8
pocket7.Length = 13
pocket7.Reversed = True

# Sketch on XY plane
sketch9 = doc.addObject("Sketcher::SketchObject", "Sketch008")
body.addObject(sketch9)
sketch9.AttachmentSupport = (doc.XY_Plane, [""])
sketch9.MapMode = "FlatFace"
add_polygon(sketch9, [(139, 59), (148, 59), (148, 40), (168, 40), (168, 29), (148, 29), (148, 10), (139, 10), (139, 29), (118, 29), (118, 10), (109, 10), (109, 29), (91, 29), (91, 40), (109, 40), (109, 59), (118, 59), (118, 40), (139, 40)])  # lines 0-19
sketch9.addConstraint([
    Sketcher.Constraint("Horizontal", 0),
    Sketcher.Constraint("Vertical", 1),
    Sketcher.Constraint("Horizontal", 2),
    Sketcher.Constraint("Vertical", 3),
    Sketcher.Constraint("Horizontal", 4),
    Sketcher.Constraint("Vertical", 5),
    Sketcher.Constraint("Horizontal", 6),
    Sketcher.Constraint("Vertical", 7),
    Sketcher.Constraint("Horizontal", 8),
    Sketcher.Constraint("Vertical", 9),
    Sketcher.Constraint("Horizontal", 10),
    Sketcher.Constraint("Vertical", 11),
    Sketcher.Constraint("Horizontal", 12),
    Sketcher.Constraint("Vertical", 13),
    Sketcher.Constraint("Horizontal", 14),
    Sketcher.Constraint("Vertical", 15),
    Sketcher.Constraint("Horizontal", 16),
    Sketcher.Constraint("Vertical", 17),
    Sketcher.Constraint("Horizontal", 18),
    Sketcher.Constraint("Vertical", 19),
    Sketcher.Constraint("Horizontal", 4, 2, 7, 2),
    Sketcher.Constraint("Horizontal", 6, 2, 9, 2),
    Sketcher.Constraint("Horizontal", 8, 2, 11, 2),
    Sketcher.Constraint("Horizontal", 2, 2, 13, 2),
    Sketcher.Constraint("Horizontal", 0, 2, 15, 2),
    Sketcher.Constraint("Horizontal", 14, 2, 17, 2),
    Sketcher.Constraint("Vertical", 1, 2, 4, 2),
    Sketcher.Constraint("Vertical", 11, 2, 14, 2),
    Sketcher.Constraint("Vertical", 9, 2, 16, 2),
    Sketcher.Constraint("Vertical", 7, 2, 18, 2),
    Sketcher.Constraint("DistanceX", 12, 2, 7, 2, Q("48.267999 mm")),
    Sketcher.Constraint("DistanceX", 0, 1, 0, 2, Q("8.865551 mm")),
    Sketcher.Constraint("DistanceX", 2, 1, 2, 2, Q("20.240161 mm")),
    Sketcher.Constraint("DistanceX", 8, 2, 8, 1, Q("21.014639 mm")),
    Sketcher.Constraint("DistanceY", 5, 2, 5, 1, Q("18.350632 mm")),
    Sketcher.Constraint("DistanceX", 10, 2, 10, 1, Q("9.084453 mm")),
    Sketcher.Constraint("DistanceY", 1, 2, 1, 1, Q("18.854343 mm")),
    Sketcher.Constraint("DistanceY", 3, 2, 3, 1, Q("11.054576 mm")),
    Sketcher.Constraint("DistanceX", -1, 1, 0, 2, Q("148.164518 mm")),
    Sketcher.Constraint("DistanceY", -1, 1, 0, 2, Q("58.582925 mm")),
])
pocket8 = doc.addObject("PartDesign::Pocket", "Pocket007")
body.addObject(pocket8)
pocket8.Profile = sketch9
pocket8.Length = 12
pocket8.Reversed = True

doc.recompute()
